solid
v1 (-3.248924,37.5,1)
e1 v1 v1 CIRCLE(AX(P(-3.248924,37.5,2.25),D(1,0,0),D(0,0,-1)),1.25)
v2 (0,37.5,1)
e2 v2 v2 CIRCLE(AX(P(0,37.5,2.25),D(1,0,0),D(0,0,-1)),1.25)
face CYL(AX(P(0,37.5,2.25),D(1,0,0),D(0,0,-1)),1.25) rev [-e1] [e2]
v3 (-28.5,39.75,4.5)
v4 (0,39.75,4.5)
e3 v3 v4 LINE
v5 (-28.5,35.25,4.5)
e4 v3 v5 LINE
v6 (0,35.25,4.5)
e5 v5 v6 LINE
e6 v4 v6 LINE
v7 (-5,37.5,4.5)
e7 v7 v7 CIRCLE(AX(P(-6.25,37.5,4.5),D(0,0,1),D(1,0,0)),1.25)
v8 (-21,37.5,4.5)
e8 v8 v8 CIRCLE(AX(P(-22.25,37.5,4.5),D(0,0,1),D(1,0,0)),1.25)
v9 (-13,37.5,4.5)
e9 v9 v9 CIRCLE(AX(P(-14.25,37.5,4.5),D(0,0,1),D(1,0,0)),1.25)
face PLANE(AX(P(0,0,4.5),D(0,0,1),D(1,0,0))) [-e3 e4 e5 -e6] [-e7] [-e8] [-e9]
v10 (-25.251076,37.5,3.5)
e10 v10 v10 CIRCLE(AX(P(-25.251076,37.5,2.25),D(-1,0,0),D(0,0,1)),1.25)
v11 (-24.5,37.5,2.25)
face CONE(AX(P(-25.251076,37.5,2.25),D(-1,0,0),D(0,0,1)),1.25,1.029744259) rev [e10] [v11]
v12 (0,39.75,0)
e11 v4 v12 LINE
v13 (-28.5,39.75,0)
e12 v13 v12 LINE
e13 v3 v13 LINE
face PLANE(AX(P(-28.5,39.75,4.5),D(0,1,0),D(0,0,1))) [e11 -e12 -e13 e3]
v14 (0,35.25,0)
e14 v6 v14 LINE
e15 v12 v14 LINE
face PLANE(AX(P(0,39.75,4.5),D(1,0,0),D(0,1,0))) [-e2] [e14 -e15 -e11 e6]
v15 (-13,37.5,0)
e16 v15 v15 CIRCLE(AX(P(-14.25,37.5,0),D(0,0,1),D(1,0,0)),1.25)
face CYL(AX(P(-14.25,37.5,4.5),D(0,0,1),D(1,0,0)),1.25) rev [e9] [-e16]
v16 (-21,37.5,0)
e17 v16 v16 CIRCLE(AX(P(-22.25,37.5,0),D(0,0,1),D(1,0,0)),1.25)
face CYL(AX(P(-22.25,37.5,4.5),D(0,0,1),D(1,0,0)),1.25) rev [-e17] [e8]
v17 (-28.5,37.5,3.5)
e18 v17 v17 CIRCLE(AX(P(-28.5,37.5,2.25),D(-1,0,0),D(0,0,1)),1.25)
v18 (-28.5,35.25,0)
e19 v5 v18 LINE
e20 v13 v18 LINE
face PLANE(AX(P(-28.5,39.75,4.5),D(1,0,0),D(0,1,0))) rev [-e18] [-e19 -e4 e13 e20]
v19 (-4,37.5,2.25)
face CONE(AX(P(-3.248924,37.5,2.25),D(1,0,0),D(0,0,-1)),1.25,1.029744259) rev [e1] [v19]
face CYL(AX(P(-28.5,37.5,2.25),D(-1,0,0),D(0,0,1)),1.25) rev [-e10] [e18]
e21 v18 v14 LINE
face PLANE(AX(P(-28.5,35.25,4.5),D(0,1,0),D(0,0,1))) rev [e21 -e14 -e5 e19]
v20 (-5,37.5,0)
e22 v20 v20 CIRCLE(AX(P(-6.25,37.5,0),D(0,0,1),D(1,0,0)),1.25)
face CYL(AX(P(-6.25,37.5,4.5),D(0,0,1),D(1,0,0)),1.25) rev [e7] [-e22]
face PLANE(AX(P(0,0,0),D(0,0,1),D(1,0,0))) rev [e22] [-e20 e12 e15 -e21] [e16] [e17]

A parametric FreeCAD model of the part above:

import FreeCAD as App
import Part
import Sketcher
Q = App.Units.Quantity

doc = App.newDocument("Part")
body = doc.addObject("PartDesign::Body", "Body")

sketch1 = body.newObject("Sketcher::SketchObject", "Sketch")
sketch1.AttachmentSupport = (doc.getObject("XY_Plane"), [""])
sketch1.MapMode = "FlatFace"
sketch1.addGeometry(Part.LineSegment(App.Vector(-28.5, 39.8, 0), App.Vector(-28.5, 35.2, 0)), False)
sketch1.addGeometry(Part.LineSegment(App.Vector(-28.5, 35.2, 0), App.Vector(0, 35.2, 0)), False)
sketch1.addGeometry(Part.LineSegment(App.Vector(0, 35.2, 0), App.Vector(0, 39.8, 0)), False)
sketch1.addGeometry(Part.LineSegment(App.Vector(0, 39.8, 0), App.Vector(-28.5, 39.8, 0)), False)
sketch1.addConstraint(Sketcher.Constraint("Coincident", 0, 2, 1, 1))
sketch1.addConstraint(Sketcher.Constraint("Coincident", 1, 2, 2, 1))
sketch1.addConstraint(Sketcher.Constraint("Coincident", 2, 2, 3, 1))
sketch1.addConstraint(Sketcher.Constraint("Coincident", 3, 2, 0, 1))
sketch1.addConstraint(Sketcher.Constraint("Vertical", 0))
sketch1.addConstraint(Sketcher.Constraint("Horizontal", 1))
sketch1.addConstraint(Sketcher.Constraint("Vertical", 2))
sketch1.addConstraint(Sketcher.Constraint("Horizontal", 3))
sketch1.addConstraint(Sketcher.Constraint("PointOnObject", 1, 2, -2))
sketch1.addConstraint(Sketcher.Constraint("DistanceX", 1, 1, 1, 2, 28.5))
sketch1.addConstraint(Sketcher.Constraint("DistanceY", 0, 2, 0, 1, 4.5))
sketch1.addConstraint(Sketcher.Constraint("DistanceY", -1, 1, 0, 2, 35.25))
pad1 = body.newObject("PartDesign::Pad", "Pad")
pad1.Profile = sketch1
pad1.Length = 4.5

sketch2 = body.newObject("Sketcher::SketchObject", "Sketch001")
sketch2.AttachmentSupport = (doc.getObject("XZ_Plane"), [""])
sketch2.MapMode = "FlatFace"
sketch2.AttachmentOffset = App.Placement(App.Vector(0, 0, -37.5), App.Rotation())
sketch2.addGeometry(Part.LineSegment(App.Vector(-4, 2.2, 0), App.Vector(0, 2.2, 0)), False)
sketch2.addGeometry(Part.LineSegment(App.Vector(0, 2.2, 0), App.Vector(0, 1, 0)), False)
sketch2.addGeometry(Part.LineSegment(App.Vector(0, 1, 0), App.Vector(-3.2, 1, 0)), False)
sketch2.addGeometry(Part.LineSegment(App.Vector(-3.2, 1, 0), App.Vector(-4, 2.2, 0)), False)
sketch2.addGeometry(Part.LineSegment(App.Vector(0, 2.2, 0), App.Vector(-4, 2.2, 0)), True)
sketch2.addConstraint(Sketcher.Constraint("Coincident", 0, 2, 1, 1))
sketch2.addConstraint(Sketcher.Constraint("Coincident", 1, 2, 2, 1))
sketch2.addConstraint(Sketcher.Constraint("Coincident", 2, 2, 3, 1))
sketch2.addConstraint(Sketcher.Constraint("Coincident", 3, 2, 0, 1))
sketch2.addConstraint(Sketcher.Constraint("Horizontal", 0))
sketch2.addConstraint(Sketcher.Constraint("Vertical", 1))
sketch2.addConstraint(Sketcher.Constraint("Horizontal", 2))
sketch2.addConstraint(Sketcher.Constraint("Horizontal", 4))
sketch2.addConstraint(Sketcher.Constraint("Coincident", 4, 1, 0, 2))
sketch2.addConstraint(Sketcher.Constraint("PointOnObject", 0, 2, -2))
sketch2.addConstraint(Sketcher.Constraint("Equal", 0, 4))
sketch2.addConstraint(Sketcher.Constraint("DistanceX", 0, 1, 0, 2, 4.0))
sketch2.addConstraint(Sketcher.Constraint("Angle", 3, Q("121 deg")))
sketch2.addConstraint(Sketcher.Constraint("DistanceY", -1, 1, 1, 2, 1.0))
sketch2.addConstraint(Sketcher.Constraint("DistanceY", 1, 2, 1, 1, 1.25))
groove = body.newObject("PartDesign::Groove", "Groove")
groove.Profile = sketch2
groove.ReferenceAxis = (sketch2, ["Axis0"])
groove.Angle = 360
doc.recompute()

linearpattern = body.newObject("PartDesign::LinearPattern", "LinearPattern")
linearpattern.Originals = [groove]
linearpattern.Direction = (doc.getObject("Z_Axis"), [""])
linearpattern.Mode = "offset"
linearpattern.Offset = 47.562875
linearpattern.Occurrences = 2
linearpattern.Reversed = True
body.Tip = linearpattern
doc.recompute()

datumplane = body.newObject("PartDesign::Plane", "DatumPlane")
datumplane.AttachmentSupport = (doc.getObject("YZ_Plane"), [""])
datumplane.MapMode = "FlatFace"
datumplane.AttachmentOffset = App.Placement(App.Vector(0, 0, -14.25), App.Rotation())
mirrored = body.newObject("PartDesign::Mirrored", "Mirrored")
mirrored.Originals = [groove]
mirrored.MirrorPlane = (datumplane, [""])
body.Tip = mirrored

sketch3 = body.newObject("Sketcher::SketchObject", "Sketch002")
sketch3.AttachmentSupport = (doc.getObject("XZ_Plane"), [""])
sketch3.MapMode = "FlatFace"
sketch3.AttachmentOffset = App.Placement(App.Vector(0, 0, -37.5), App.Rotation())
sketch3.addGeometry(Part.LineSegment(App.Vector(-28.5, -45.3, 0), App.Vector(-24.5, -45.3, 0)), False)
sketch3.addGeometry(Part.LineSegment(App.Vector(-24.5, -45.3, 0), App.Vector(-25.3, -46.6, 0)), False)
sketch3.addGeometry(Part.LineSegment(App.Vector(-25.3, -46.6, 0), App.Vector(-28.5, -46.6, 0)), False)
sketch3.addGeometry(Part.LineSegment(App.Vector(-28.5, -46.6, 0), App.Vector(-28.5, -45.3, 0)), False)
sketch3.addGeometry(Part.LineSegment(App.Vector(-24.5, -45.3, 0), App.Vector(-28.5, -45.3, 0)), True)
sketch3.addConstraint(Sketcher.Constraint("Coincident", 0, 2, 1, 1))
sketch3.addConstraint(Sketcher.Constraint("Coincident", 1, 2, 2, 1))
sketch3.addConstraint(Sketcher.Constraint("Coincident", 2, 2, 3, 1))
sketch3.addConstraint(Sketcher.Constraint("Coincident", 3, 2, 0, 1))
sketch3.addConstraint(Sketcher.Constraint("Horizontal", 0))
sketch3.addConstraint(Sketcher.Constraint("Horizontal", 2))
sketch3.addConstraint(Sketcher.Constraint("Vertical", 3))
sketch3.addConstraint(Sketcher.Constraint("Horizontal", 4))
sketch3.addConstraint(Sketcher.Constraint("Coincident", 4, 1, 0, 2))
sketch3.addConstraint(Sketcher.Constraint("Vertical", 2, 2, 4, 2))
sketch3.addConstraint(Sketcher.Constraint("DistanceX", 0, 1, 0, 2, 4.0))
sketch3.addConstraint(Sketcher.Constraint("Angle", 1, Q("-121 deg")))
sketch3.addConstraint(Sketcher.Constraint("DistanceY", 3, 1, 3, 2, 1.25))
sketch3.addConstraint(Sketcher.Constraint("DistanceX", 0, 2, -1, 1, 24.5))
sketch3.addConstraint(Sketcher.Constraint("DistanceY", 0, 2, -1, 1, 45.312875))
groove2 = body.newObject("PartDesign::Groove", "Groove001")
groove2.Profile = sketch3
groove2.ReferenceAxis = (sketch3, ["Axis0"])
groove2.Angle = 360

sketch4 = body.newObject("Sketcher::SketchObject", "Sketch003")
sketch4.AttachmentSupport = (doc.getObject("XY_Plane"), [""])
sketch4.MapMode = "FlatFace"
sketch4.AttachmentOffset = App.Placement(App.Vector(0, 0, 4.5), App.Rotation())
sketch4.addGeometry(Part.Circle(App.Vector(-6.2, 37.5, 0), App.Vector(0, 0, 1), 1.2), False)
sketch4.addGeometry(Part.Circle(App.Vector(-14.2, 37.5, 0), App.Vector(0, 0, 1), 1.2), False)
sketch4.addGeometry(Part.Circle(App.Vector(-22.2, 37.5, 0), App.Vector(0, 0, 1), 1.2), False)
sketch4.addConstraint(Sketcher.Constraint("Equal", 0, 1))
sketch4.addConstraint(Sketcher.Constraint("Equal", 1, 2))
sketch4.addConstraint(Sketcher.Constraint("Horizontal", 0, 3, 1, 3))
sketch4.addConstraint(Sketcher.Constraint("Horizontal", 1, 3, 2, 3))
sketch4.addConstraint(Sketcher.Constraint("Diameter", 0, 2.5))
sketch4.addConstraint(Sketcher.Constraint("DistanceX", 1, 3, 0, 3, 8.0))
sketch4.addConstraint(Sketcher.Constraint("DistanceX", 2, 3, 1, 3, 8.0))
sketch4.addConstraint(Sketcher.Constraint("DistanceY", -1, 1, 0, 3, 37.5))
sketch4.addConstraint(Sketcher.Constraint("DistanceX", 0, 3, -1, 1, 6.25))
doc.recompute()
hole = body.newObject("PartDesign::Hole", "Hole")
hole.Profile = sketch4
hole.ThreadType = "None"
hole.Diameter = 2.5
hole.DepthType = "ThroughAll"

doc.recompute()
